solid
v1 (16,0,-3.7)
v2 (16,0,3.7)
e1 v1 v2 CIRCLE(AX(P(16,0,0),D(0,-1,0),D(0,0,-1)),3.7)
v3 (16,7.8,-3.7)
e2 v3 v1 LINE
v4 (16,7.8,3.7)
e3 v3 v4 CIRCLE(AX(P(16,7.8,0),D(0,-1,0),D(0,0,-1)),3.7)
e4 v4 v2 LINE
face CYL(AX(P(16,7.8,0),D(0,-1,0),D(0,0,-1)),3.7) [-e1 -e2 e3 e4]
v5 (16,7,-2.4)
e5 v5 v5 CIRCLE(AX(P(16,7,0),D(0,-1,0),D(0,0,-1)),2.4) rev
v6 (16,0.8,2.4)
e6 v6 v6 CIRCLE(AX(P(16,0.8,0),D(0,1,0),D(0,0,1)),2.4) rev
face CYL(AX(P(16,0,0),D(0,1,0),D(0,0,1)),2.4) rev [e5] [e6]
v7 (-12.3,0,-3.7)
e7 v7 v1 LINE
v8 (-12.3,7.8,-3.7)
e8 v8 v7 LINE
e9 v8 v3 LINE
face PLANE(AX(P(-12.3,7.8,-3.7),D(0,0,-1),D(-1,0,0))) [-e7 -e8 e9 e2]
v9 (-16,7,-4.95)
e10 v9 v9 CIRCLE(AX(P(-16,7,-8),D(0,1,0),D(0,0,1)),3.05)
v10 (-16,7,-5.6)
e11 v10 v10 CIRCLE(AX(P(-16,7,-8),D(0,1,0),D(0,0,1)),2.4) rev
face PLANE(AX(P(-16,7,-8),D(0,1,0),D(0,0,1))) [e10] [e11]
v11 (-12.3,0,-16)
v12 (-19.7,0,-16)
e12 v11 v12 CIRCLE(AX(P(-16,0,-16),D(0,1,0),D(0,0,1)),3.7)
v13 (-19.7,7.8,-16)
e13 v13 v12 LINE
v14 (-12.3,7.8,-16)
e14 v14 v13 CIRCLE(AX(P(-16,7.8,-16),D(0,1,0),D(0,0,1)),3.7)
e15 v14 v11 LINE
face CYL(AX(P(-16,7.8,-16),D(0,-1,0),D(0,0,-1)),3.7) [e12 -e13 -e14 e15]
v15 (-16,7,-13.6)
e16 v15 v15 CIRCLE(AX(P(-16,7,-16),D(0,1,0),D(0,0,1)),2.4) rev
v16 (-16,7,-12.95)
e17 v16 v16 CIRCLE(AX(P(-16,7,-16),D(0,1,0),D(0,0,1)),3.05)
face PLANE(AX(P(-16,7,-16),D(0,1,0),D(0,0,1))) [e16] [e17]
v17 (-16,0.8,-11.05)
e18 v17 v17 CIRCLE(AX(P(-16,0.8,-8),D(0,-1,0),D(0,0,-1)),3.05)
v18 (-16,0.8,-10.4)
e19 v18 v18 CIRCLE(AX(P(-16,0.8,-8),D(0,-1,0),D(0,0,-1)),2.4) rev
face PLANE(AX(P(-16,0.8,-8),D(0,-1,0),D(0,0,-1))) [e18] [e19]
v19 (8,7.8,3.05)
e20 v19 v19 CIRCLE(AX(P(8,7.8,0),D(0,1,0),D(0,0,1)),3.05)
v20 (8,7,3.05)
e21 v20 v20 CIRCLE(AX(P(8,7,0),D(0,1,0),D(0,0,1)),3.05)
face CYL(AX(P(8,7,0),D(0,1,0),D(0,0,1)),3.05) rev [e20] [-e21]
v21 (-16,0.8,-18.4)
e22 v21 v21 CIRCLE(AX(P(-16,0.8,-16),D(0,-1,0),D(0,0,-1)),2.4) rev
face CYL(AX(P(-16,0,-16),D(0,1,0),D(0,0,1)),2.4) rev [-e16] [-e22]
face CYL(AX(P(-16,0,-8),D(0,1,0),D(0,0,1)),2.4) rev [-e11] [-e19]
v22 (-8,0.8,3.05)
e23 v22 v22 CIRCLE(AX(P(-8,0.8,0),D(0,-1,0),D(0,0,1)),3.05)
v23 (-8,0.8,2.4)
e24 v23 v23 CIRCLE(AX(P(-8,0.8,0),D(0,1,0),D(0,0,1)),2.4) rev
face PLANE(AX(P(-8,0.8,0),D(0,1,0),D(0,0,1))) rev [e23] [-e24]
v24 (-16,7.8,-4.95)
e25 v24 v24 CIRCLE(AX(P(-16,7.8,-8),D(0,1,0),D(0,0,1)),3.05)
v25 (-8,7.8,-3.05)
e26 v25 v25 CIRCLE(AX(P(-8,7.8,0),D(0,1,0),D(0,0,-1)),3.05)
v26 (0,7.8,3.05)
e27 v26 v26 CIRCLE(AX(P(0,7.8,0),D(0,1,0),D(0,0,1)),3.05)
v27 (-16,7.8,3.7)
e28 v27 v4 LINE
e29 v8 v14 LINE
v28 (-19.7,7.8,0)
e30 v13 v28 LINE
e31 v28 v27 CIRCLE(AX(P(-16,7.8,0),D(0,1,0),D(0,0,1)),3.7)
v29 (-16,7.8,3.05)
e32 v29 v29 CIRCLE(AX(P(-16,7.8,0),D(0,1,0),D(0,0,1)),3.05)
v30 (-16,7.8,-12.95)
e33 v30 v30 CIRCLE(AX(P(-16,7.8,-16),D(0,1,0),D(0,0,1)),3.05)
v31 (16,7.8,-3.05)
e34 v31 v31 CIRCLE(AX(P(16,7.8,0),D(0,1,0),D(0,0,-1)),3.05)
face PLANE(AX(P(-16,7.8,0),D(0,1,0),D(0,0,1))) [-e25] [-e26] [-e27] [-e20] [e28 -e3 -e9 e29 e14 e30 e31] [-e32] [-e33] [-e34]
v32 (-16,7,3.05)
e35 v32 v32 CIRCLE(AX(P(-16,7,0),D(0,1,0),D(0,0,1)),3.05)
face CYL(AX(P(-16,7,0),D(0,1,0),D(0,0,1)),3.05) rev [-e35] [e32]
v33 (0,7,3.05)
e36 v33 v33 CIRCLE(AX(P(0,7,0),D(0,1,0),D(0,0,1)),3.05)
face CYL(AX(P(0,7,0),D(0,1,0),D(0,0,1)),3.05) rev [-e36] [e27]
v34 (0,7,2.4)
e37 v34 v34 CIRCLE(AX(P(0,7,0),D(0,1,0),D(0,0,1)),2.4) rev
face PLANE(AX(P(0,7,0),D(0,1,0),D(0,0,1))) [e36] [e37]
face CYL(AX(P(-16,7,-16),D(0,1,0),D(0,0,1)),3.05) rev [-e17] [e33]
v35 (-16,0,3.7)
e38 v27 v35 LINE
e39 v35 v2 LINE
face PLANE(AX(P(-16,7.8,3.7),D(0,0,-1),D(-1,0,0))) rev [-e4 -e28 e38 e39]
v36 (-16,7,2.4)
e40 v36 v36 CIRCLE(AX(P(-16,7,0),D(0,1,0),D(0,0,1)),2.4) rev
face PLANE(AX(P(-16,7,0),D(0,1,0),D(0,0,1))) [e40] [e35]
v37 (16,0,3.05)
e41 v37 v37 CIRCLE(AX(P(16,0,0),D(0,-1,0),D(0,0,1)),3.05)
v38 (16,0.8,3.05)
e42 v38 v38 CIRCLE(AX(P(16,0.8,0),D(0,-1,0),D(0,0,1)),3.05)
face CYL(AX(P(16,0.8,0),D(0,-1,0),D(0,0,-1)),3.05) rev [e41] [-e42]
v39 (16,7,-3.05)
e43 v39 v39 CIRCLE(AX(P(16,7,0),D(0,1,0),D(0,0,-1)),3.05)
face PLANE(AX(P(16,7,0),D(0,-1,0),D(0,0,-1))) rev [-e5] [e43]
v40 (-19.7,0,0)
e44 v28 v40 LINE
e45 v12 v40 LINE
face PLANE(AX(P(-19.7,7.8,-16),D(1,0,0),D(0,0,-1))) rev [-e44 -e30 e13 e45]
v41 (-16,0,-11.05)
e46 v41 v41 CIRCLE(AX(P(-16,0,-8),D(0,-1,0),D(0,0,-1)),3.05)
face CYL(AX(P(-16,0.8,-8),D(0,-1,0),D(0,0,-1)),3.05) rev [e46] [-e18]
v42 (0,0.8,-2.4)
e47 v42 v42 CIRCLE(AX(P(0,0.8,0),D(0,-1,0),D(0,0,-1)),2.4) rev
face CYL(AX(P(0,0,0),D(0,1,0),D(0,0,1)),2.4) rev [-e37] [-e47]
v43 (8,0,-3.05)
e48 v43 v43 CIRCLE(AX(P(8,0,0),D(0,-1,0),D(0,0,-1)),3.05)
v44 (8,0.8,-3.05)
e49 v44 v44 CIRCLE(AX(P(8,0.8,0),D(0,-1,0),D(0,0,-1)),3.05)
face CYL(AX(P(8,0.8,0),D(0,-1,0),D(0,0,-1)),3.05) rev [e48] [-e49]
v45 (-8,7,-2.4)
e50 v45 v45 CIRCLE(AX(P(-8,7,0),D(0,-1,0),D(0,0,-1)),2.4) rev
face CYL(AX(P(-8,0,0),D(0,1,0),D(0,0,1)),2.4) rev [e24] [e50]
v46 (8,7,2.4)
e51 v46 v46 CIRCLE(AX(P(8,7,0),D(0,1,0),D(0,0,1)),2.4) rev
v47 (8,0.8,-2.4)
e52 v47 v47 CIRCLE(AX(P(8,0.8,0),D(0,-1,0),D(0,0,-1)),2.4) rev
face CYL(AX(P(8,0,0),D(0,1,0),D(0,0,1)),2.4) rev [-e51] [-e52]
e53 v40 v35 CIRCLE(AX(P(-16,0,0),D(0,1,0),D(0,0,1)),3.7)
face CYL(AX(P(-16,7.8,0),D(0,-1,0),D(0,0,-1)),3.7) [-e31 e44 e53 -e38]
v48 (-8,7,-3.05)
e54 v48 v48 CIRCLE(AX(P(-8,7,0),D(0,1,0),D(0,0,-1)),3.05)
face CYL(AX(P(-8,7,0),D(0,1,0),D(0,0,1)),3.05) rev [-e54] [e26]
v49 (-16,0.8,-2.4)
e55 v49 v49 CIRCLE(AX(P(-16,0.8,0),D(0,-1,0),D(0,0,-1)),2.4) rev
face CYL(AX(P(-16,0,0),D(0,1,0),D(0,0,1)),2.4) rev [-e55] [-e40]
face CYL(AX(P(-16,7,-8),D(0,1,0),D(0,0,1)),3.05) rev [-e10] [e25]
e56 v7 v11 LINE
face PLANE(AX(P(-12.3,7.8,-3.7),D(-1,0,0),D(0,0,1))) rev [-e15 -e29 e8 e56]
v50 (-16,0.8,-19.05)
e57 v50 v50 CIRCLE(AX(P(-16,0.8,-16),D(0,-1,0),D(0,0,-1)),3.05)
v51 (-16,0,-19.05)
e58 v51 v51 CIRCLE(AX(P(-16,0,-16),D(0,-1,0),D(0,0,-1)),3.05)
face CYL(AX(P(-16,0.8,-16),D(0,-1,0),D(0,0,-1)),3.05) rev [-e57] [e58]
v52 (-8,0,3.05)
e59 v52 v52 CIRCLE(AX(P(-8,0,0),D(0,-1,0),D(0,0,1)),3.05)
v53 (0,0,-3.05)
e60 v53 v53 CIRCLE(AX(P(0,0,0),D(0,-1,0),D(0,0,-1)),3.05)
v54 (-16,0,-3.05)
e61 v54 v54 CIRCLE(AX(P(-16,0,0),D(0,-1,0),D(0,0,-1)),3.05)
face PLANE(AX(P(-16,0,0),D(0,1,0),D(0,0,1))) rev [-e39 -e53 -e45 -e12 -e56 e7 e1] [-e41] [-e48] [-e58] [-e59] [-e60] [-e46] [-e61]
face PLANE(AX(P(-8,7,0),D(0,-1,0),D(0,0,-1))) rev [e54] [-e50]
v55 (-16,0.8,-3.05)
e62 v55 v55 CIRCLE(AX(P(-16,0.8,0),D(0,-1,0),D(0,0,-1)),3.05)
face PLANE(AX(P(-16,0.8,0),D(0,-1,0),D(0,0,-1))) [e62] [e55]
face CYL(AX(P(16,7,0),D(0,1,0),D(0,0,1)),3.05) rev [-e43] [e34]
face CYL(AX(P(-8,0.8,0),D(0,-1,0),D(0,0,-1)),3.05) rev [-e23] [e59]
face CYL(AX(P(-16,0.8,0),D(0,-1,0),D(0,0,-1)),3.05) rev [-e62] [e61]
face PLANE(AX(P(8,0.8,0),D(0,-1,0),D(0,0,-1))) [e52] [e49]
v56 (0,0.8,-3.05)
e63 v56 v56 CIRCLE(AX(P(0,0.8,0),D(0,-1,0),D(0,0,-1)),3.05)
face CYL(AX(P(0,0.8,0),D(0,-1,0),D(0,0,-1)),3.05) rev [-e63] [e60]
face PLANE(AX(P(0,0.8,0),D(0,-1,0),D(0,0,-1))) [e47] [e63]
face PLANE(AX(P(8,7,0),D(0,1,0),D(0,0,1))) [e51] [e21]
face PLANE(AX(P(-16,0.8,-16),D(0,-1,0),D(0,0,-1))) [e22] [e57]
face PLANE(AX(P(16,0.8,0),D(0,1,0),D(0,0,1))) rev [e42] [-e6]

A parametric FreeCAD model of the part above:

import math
import FreeCAD as App
import Part
import Sketcher
Q = App.Units.Quantity

doc = App.newDocument("Part")
body = doc.addObject("PartDesign::Body", "Body")

# Sketch on XZ plane
sketch1 = body.newObject("Sketcher::SketchObject", "Sketch")
sketch1.AttachmentSupport = (doc.getObject("XZ_Plane"), [""])
sketch1.MapMode = "FlatFace"
sketch1.addGeometry(Part.LineSegment(App.Vector(16, -3.7, 0), App.Vector(-12.3, -3.7, 0)), False)
sketch1.addGeometry(Part.LineSegment(App.Vector(-12.3, -3.7, 0), App.Vector(-12.3, -16, 0)), False)
sketch1.addGeometry(Part.ArcOfCircle(Part.Circle(App.Vector(-16, -16, 0), App.Vector(0, 0, 1), 3.7), math.radians(180), math.radians(360)), False)
sketch1.addGeometry(Part.LineSegment(App.Vector(-19.7, -16, 0), App.Vector(-19.7, 0, 0)), False)
sketch1.addGeometry(Part.ArcOfCircle(Part.Circle(App.Vector(-16, 0, 0), App.Vector(0, 0, 1), 3.7), math.radians(90), math.radians(180)), False)
sketch1.addGeometry(Part.LineSegment(App.Vector(-16, 3.7, 0), App.Vector(16, 3.7, 0)), False)
sketch1.addGeometry(Part.ArcOfCircle(Part.Circle(App.Vector(16, 0, 0), App.Vector(0, 0, 1), 3.7), math.radians(-90), math.radians(90)), False)
sketch1.addConstraint(Sketcher.Constraint("Coincident", 0, 2, 1, 1))
sketch1.addConstraint(Sketcher.Constraint("Tangent", 1, 2, 2, 2))
sketch1.addConstraint(Sketcher.Constraint("Tangent", 2, 1, 3, 1))
sketch1.addConstraint(Sketcher.Constraint("Tangent", 3, 2, 4, 2))
sketch1.addConstraint(Sketcher.Constraint("Tangent", 4, 1, 5, 1))
sketch1.addConstraint(Sketcher.Constraint("Tangent", 5, 2, 6, 2))
sketch1.addConstraint(Sketcher.Constraint("Tangent", 6, 1, 0, 1))
sketch1.addConstraint(Sketcher.Constraint("Horizontal", 0))
sketch1.addConstraint(Sketcher.Constraint("Vertical", 1))
sketch1.addConstraint(Sketcher.Constraint("Vertical", 3))
sketch1.addConstraint(Sketcher.Constraint("Horizontal", 5))
sketch1.addConstraint(Sketcher.Constraint("Equal", 2, 4))
sketch1.addConstraint(Sketcher.Constraint("Equal", 4, 6))
sketch1.addConstraint(Sketcher.Constraint("Symmetric", 4, 3, 6, 3, -1, 1))
sketch1.addConstraint(Sketcher.Constraint("Radius", 2, Q("3.7 mm")))
sketch1.addConstraint(Sketcher.Constraint("DistanceX", 5, 1, 5, 2, Q("32 mm")))
sketch1.addConstraint(Sketcher.Constraint("DistanceY", 3, 1, 3, 2, Q("16 mm")))
pad1 = body.newObject("PartDesign::Pad", "Pad")
pad1.Profile = sketch1
pad1.Length = 7.8
pad1.Reversed = True

# Sketch on XZ plane
sketch2 = body.newObject("Sketcher::SketchObject", "Sketch001")
sketch2.AttachmentSupport = (doc.getObject("XZ_Plane"), [""])
sketch2.MapMode = "FlatFace"
sketch2.AttachmentOffset = App.Placement(App.Vector(0, 0, -7.8), App.Rotation())
sketch2.addGeometry(Part.Circle(App.Vector(0, 0, 0), App.Vector(0, 0, 1), 2.4), False)
sketch2.addGeometry(Part.Circle(App.Vector(8, 0, 0), App.Vector(0, 0, 1), 2.4), False)
sketch2.addGeometry(Part.Circle(App.Vector(16, 0, 0), App.Vector(0, 0, 1), 2.4), False)
sketch2.addGeometry(Part.Circle(App.Vector(-16, 0, 0), App.Vector(0, 0, 1), 2.4), False)
sketch2.addGeometry(Part.Circle(App.Vector(-8, 0, 0), App.Vector(0, 0, 1), 2.4), False)
sketch2.addGeometry(Part.Circle(App.Vector(-16, -16, 0), App.Vector(0, 0, 1), 2.4), False)
sketch2.addGeometry(Part.Circle(App.Vector(-16, -8, 0), App.Vector(0, 0, 1), 2.4), False)
sketch2.addConstraint(Sketcher.Constraint("Coincident", 0, 3, -1, 1))
sketch2.addConstraint(Sketcher.Constraint("Equal", 0, 1))
sketch2.addConstraint(Sketcher.Constraint("Equal", 1, 2))
sketch2.addConstraint(Sketcher.Constraint("Equal", 2, 3))
sketch2.addConstraint(Sketcher.Constraint("Equal", 3, 4))
sketch2.addConstraint(Sketcher.Constraint("Equal", 4, 5))
sketch2.addConstraint(Sketcher.Constraint("Equal", 5, 6))
sketch2.addConstraint(Sketcher.Constraint("Symmetric", 2, 3, 3, 3, -1, 1))
sketch2.addConstraint(Sketcher.Constraint("Symmetric", 1, 3, 4, 3, -1, 1))
sketch2.addConstraint(Sketcher.Constraint("PointOnObject", 1, 3, -1))
sketch2.addConstraint(Sketcher.Constraint("PointOnObject", 2, 3, -1))
sketch2.addConstraint(Sketcher.Constraint("Vertical", 3, 3, 5, 3))
sketch2.addConstraint(Sketcher.Constraint("Vertical", 5, 3, 6, 3))
sketch2.addConstraint(Sketcher.Constraint("Diameter", 0, Q("4.8 mm")))
sketch2.addConstraint(Sketcher.Constraint("DistanceX", -1, 1, 1, 3, Q("8 mm")))
sketch2.addConstraint(Sketcher.Constraint("DistanceX", -1, 1, 2, 3, Q("16 mm")))
sketch2.addConstraint(Sketcher.Constraint("DistanceY", 5, 3, -1, 1, Q("16 mm")))
sketch2.addConstraint(Sketcher.Constraint("DistanceY", 6, 3, -1, 1, Q("8 mm")))
pocket1 = body.newObject("PartDesign::Pocket", "Pocket")
pocket1.Profile = sketch2
pocket1.Length = 7.8
pocket1.Reversed = True

# Sketch on XZ plane
sketch3 = body.newObject("Sketcher::SketchObject", "Sketch002")
sketch3.AttachmentSupport = (doc.getObject("XZ_Plane"), [""])
sketch3.MapMode = "FlatFace"
sketch3.AttachmentOffset = App.Placement(App.Vector(0, 0, -7.8), App.Rotation())
sketch3.addGeometry(Part.Circle(App.Vector(0, 0, 0), App.Vector(0, 0, 1), 3), False)
sketch3.addGeometry(Part.Circle(App.Vector(8, 0, 0), App.Vector(0, 0, 1), 3), False)
sketch3.addGeometry(Part.Circle(App.Vector(16, 0, 0), App.Vector(0, 0, 1), 3), False)
sketch3.addGeometry(Part.Circle(App.Vector(-16, 0, 0), App.Vector(0, 0, 1), 3), False)
sketch3.addGeometry(Part.Circle(App.Vector(-8, 0, 0), App.Vector(0, 0, 1), 3), False)
sketch3.addGeometry(Part.Circle(App.Vector(-16, -8, 0), App.Vector(0, 0, 1), 3), False)
sketch3.addGeometry(Part.Circle(App.Vector(-16, -16, 0), App.Vector(0, 0, 1), 3), False)
sketch3.addConstraint(Sketcher.Constraint("Coincident", 0, 3, -1, 1))
sketch3.addConstraint(Sketcher.Constraint("Equal", 0, 1))
sketch3.addConstraint(Sketcher.Constraint("Equal", 1, 2))
sketch3.addConstraint(Sketcher.Constraint("Equal", 2, 3))
sketch3.addConstraint(Sketcher.Constraint("Equal", 3, 4))
sketch3.addConstraint(Sketcher.Constraint("Equal", 4, 5))
sketch3.addConstraint(Sketcher.Constraint("Equal", 5, 6))
sketch3.addConstraint(Sketcher.Constraint("Symmetric", 2, 3, 3, 3, -1, 1))
sketch3.addConstraint(Sketcher.Constraint("Symmetric", 1, 3, 4, 3, -1, 1))
sketch3.addConstraint(Sketcher.Constraint("PointOnObject", 1, 3, -1))
sketch3.addConstraint(Sketcher.Constraint("PointOnObject", 2, 3, -1))
sketch3.addConstraint(Sketcher.Constraint("Vertical", 3, 3, 5, 3))
sketch3.addConstraint(Sketcher.Constraint("Vertical", 5, 3, 6, 3))
sketch3.addConstraint(Sketcher.Constraint("Diameter", 0, Q("6.1 mm")))
sketch3.addConstraint(Sketcher.Constraint("DistanceX", -1, 1, 1, 3, Q("8 mm")))
sketch3.addConstraint(Sketcher.Constraint("DistanceX", -1, 1, 2, 3, Q("16 mm")))
sketch3.addConstraint(Sketcher.Constraint("DistanceY", 5, 3, -1, 1, Q("8 mm")))
sketch3.addConstraint(Sketcher.Constraint("DistanceY", 6, 3, -1, 1, Q("16 mm")))
pocket2 = body.newObject("PartDesign::Pocket", "Pocket001")
pocket2.Profile = sketch3
pocket2.Length = 0.8
pocket2.Reversed = True

# Sketch on XZ plane
sketch4 = body.newObject("Sketcher::SketchObject", "Sketch003")
sketch4.AttachmentSupport = (doc.getObject("XZ_Plane"), [""])
sketch4.MapMode = "FlatFace"
sketch4.addGeometry(Part.Circle(App.Vector(0, 0, 0), App.Vector(0, 0, 1), 3), False)
sketch4.addGeometry(Part.Circle(App.Vector(8, 0, 0), App.Vector(0, 0, 1), 3), False)
sketch4.addGeometry(Part.Circle(App.Vector(16, 0, 0), App.Vector(0, 0, 1), 3), False)
sketch4.addGeometry(Part.Circle(App.Vector(-16, 0, 0), App.Vector(0, 0, 1), 3), False)
sketch4.addGeometry(Part.Circle(App.Vector(-8, 0, 0), App.Vector(0, 0, 1), 3), False)
sketch4.addGeometry(Part.Circle(App.Vector(-16, -8, 0), App.Vector(0, 0, 1), 3), False)
sketch4.addGeometry(Part.Circle(App.Vector(-16, -16, 0), App.Vector(0, 0, 1), 3), False)
sketch4.addConstraint(Sketcher.Constraint("Coincident", 0, 3, -1, 1))
sketch4.addConstraint(Sketcher.Constraint("Equal", 0, 1))
sketch4.addConstraint(Sketcher.Constraint("Equal", 1, 2))
sketch4.addConstraint(Sketcher.Constraint("Equal", 2, 3))
sketch4.addConstraint(Sketcher.Constraint("Equal", 3, 4))
sketch4.addConstraint(Sketcher.Constraint("Equal", 4, 5))
sketch4.addConstraint(Sketcher.Constraint("Equal", 5, 6))
sketch4.addConstraint(Sketcher.Constraint("Symmetric", 2, 3, 3, 3, -1, 1))
sketch4.addConstraint(Sketcher.Constraint("Symmetric", 1, 3, 4, 3, -1, 1))
sketch4.addConstraint(Sketcher.Constraint("PointOnObject", 1, 3, -1))
sketch4.addConstraint(Sketcher.Constraint("PointOnObject", 2, 3, -1))
sketch4.addConstraint(Sketcher.Constraint("Vertical", 3, 3, 5, 3))
sketch4.addConstraint(Sketcher.Constraint("Vertical", 5, 3, 6, 3))
sketch4.addConstraint(Sketcher.Constraint("Diameter", 0, Q("6.1 mm")))
sketch4.addConstraint(Sketcher.Constraint("DistanceX", -1, 1, 1, 3, Q("8 mm")))
sketch4.addConstraint(Sketcher.Constraint("DistanceX", -1, 1, 2, 3, Q("16 mm")))
sketch4.addConstraint(Sketcher.Constraint("DistanceY", 5, 3, -1, 1, Q("8 mm")))
sketch4.addConstraint(Sketcher.Constraint("DistanceY", 6, 3, -1, 1, Q("16 mm")))
pocket3 = body.newObject("PartDesign::Pocket", "Pocket002")
pocket3.Profile = sketch4
pocket3.Length = 0.8

doc.recompute()
